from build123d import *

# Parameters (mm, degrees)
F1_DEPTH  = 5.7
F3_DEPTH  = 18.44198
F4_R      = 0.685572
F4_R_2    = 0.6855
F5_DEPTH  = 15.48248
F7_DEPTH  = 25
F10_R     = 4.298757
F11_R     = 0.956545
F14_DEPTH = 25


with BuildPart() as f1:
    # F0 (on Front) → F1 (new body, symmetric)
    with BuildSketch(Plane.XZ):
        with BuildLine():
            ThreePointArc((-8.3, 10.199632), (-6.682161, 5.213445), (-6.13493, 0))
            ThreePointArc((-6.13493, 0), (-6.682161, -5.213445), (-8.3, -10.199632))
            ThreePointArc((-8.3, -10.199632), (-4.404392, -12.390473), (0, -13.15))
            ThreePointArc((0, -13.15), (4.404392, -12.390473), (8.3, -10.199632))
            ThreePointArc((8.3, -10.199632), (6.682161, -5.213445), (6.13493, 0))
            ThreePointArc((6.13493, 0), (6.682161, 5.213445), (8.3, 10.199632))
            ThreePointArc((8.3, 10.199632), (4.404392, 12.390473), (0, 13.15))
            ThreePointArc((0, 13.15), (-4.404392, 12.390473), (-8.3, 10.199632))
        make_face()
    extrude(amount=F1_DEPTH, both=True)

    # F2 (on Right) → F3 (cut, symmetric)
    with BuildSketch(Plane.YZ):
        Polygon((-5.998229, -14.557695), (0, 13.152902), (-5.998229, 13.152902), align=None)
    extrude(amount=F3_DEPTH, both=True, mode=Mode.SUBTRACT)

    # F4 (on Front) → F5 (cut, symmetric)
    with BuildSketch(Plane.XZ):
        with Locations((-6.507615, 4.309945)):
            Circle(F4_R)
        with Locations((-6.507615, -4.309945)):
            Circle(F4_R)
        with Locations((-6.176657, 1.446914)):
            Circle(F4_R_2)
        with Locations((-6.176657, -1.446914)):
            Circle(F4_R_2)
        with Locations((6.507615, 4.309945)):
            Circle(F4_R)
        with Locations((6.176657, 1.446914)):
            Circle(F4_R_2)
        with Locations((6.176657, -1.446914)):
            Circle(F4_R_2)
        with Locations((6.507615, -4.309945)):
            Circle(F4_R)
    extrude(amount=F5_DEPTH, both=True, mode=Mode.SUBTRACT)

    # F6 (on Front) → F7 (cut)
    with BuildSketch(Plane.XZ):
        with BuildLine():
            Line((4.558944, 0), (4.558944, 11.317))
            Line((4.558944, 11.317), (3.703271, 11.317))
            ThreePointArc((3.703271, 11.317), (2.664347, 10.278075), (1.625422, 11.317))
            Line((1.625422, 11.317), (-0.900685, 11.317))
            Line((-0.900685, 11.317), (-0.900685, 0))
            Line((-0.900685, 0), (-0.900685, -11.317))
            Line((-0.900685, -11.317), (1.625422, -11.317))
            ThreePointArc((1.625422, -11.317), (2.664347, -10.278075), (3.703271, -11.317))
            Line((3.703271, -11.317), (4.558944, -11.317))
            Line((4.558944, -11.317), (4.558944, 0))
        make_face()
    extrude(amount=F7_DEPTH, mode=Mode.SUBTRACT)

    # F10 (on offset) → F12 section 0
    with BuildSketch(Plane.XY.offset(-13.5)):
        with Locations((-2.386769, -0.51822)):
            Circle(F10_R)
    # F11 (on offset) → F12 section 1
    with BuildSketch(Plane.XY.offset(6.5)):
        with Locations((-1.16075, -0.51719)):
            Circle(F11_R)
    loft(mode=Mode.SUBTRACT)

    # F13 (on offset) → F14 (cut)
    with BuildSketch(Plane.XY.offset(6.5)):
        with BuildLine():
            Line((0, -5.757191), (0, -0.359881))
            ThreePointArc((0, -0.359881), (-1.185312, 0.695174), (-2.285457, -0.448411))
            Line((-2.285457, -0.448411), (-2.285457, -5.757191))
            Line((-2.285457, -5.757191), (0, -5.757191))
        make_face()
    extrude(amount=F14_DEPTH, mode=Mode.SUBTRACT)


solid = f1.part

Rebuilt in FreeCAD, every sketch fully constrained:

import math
import FreeCAD as App
import Part
import Sketcher
from FreeCAD import Vector
Q = App.Units.Quantity


def add_polygon(sketch, points):
    """Adds a closed chain of lines whose ends are joined by coincident constraints."""
    first, n = sketch.GeometryCount, len(points)
    for a, b in zip(points, points[1:] + points[:1]):
        sketch.addGeometry(Part.LineSegment(App.Vector(*a, 0), App.Vector(*b, 0)), False)
    for i in range(n):
        sketch.addConstraint(Sketcher.Constraint("Coincident", first + i, 2, first + (i + 1) % n, 1))

doc = App.newDocument("Part")
body = doc.addObject("PartDesign::Body", "Body")

# Sketch on XZ plane
sketch1 = doc.addObject("Sketcher::SketchObject", "Sketch")
body.addObject(sketch1)
sketch1.AttachmentSupport = (doc.XZ_Plane, [""])
sketch1.MapMode = "FlatFace"
sketch1.addGeometry([
    Part.ArcOfCircle(Part.Circle(Vector(-31, 0, 0), Vector(0, 0, 1), 25), math.radians(0), math.radians(24)),  # 0
    Part.ArcOfCircle(Part.Circle(Vector(-31, 0, 0), Vector(0, 0, 1), 25), math.radians(-24), math.radians(0)),  # 1
    Part.ArcOfCircle(Part.Circle(Vector(0, 0, 0), Vector(0, 0, 1), 13), math.radians(-129), math.radians(-90)),  # 2
    Part.ArcOfCircle(Part.Circle(Vector(0, 0, 0), Vector(0, 0, 1), 13), math.radians(-90), math.radians(-51)),  # 3
    Part.ArcOfCircle(Part.Circle(Vector(31, 0, 0), Vector(0, 0, 1), 25), math.radians(180), math.radians(204)),  # 4
    Part.ArcOfCircle(Part.Circle(Vector(31, 0, 0), Vector(0, 0, 1), 25), math.radians(156), math.radians(180)),  # 5
    Part.ArcOfCircle(Part.Circle(Vector(0, 0, 0), Vector(0, 0, 1), 13), math.radians(51), math.radians(90)),  # 6
    Part.ArcOfCircle(Part.Circle(Vector(0, 0, 0), Vector(0, 0, 1), 13), math.radians(90), math.radians(129)),  # 7
], False)
sketch1.addConstraint([
    Sketcher.Constraint("Tangent", 0, 1, 1, 2),
    Sketcher.Constraint("Coincident", 1, 1, 2, 1),
    Sketcher.Constraint("Tangent", 2, 2, 3, 1),
    Sketcher.Constraint("Coincident", 3, 2, 4, 2),
    Sketcher.Constraint("Tangent", 4, 1, 5, 2),
    Sketcher.Constraint("Coincident", 5, 1, 6, 1),
    Sketcher.Constraint("Tangent", 6, 2, 7, 1),
    Sketcher.Constraint("Coincident", 7, 2, 0, 2),
    Sketcher.Constraint("Coincident", 2, 3, -1, 1),
    Sketcher.Constraint("Coincident", 6, 3, -1, 1),
    Sketcher.Constraint("Equal", 0, 1),
    Sketcher.Constraint("Equal", 2, 3),
    Sketcher.Constraint("Equal", 1, 4),
    Sketcher.Constraint("Equal", 4, 5),
    Sketcher.Constraint("Equal", 3, 6),
    Sketcher.Constraint("Equal", 6, 7),
    Sketcher.Constraint("Symmetric", 0, 3, 4, 3, -1, 1),
    Sketcher.Constraint("PointOnObject", 0, 3, -1),
    Sketcher.Constraint("PointOnObject", 0, 1, -1),
    Sketcher.Constraint("PointOnObject", 2, 2, -2),
    Sketcher.Constraint("PointOnObject", 4, 1, -1),
    Sketcher.Constraint("PointOnObject", 6, 2, -2),
    Sketcher.Constraint("DistanceX", 1, 1, -1, 1, Q("8.3 mm")),
    Sketcher.Constraint("DistanceY", 2, 2, -1, 1, Q("13.15 mm")),
    Sketcher.Constraint("Radius", 0, Q("25.107733 mm")),
])
pad1 = doc.addObject("PartDesign::Pad", "Pad")
body.addObject(pad1)
pad1.Profile = sketch1
pad1.Length = 11.4
pad1.Midplane = True

# Sketch on YZ plane
sketch2 = doc.addObject("Sketcher::SketchObject", "Sketch001")
body.addObject(sketch2)
sketch2.AttachmentSupport = (doc.YZ_Plane, [""])
sketch2.MapMode = "FlatFace"
add_polygon(sketch2, [(-6, -15), (0, 13), (-6, 13)])  # lines 0-2
sketch2.addConstraint([
    Sketcher.Constraint("Horizontal", 1),
    Sketcher.Constraint("Vertical", 2),
    Sketcher.Constraint("PointOnObject", 0, 2, -2),
    Sketcher.Constraint("DistanceX", 1, 2, 1, 1, Q("5.998229 mm")),
    Sketcher.Constraint("DistanceY", -1, 1, 0, 2, Q("13.152902 mm")),
    Sketcher.Constraint("DistanceY", 2, 2, 2, 1, Q("27.710597 mm")),
])
pocket1 = doc.addObject("PartDesign::Pocket", "Pocket")
body.addObject(pocket1)
pocket1.Profile = sketch2
pocket1.Length = 36.88396
pocket1.Midplane = True

# Sketch on XZ plane
sketch3 = doc.addObject("Sketcher::SketchObject", "Sketch002")
body.addObject(sketch3)
sketch3.AttachmentSupport = (doc.XZ_Plane, [""])
sketch3.MapMode = "FlatFace"
sketch3.addGeometry([
    Part.Circle(Vector(-6.5, 4.3, 0), Vector(0, 0, 1), 0.7),  # 0
    Part.Circle(Vector(-6.5, -4.3, 0), Vector(0, 0, 1), 0.7),  # 1
    Part.Circle(Vector(-6.2, 1.4, 0), Vector(0, 0, 1), 0.7),  # 2
    Part.Circle(Vector(-6.2, -1.4, 0), Vector(0, 0, 1), 0.7),  # 3
    Part.Circle(Vector(6.5, 4.3, 0), Vector(0, 0, 1), 0.7),  # 4
    Part.Circle(Vector(6.2, 1.4, 0), Vector(0, 0, 1), 0.7),  # 5
    Part.Circle(Vector(6.2, -1.4, 0), Vector(0, 0, 1), 0.7),  # 6
    Part.Circle(Vector(6.5, -4.3, 0), Vector(0, 0, 1), 0.7),  # 7
], False)
sketch3.addConstraint([
    Sketcher.Constraint("Equal", 0, 1),
    Sketcher.Constraint("Equal", 2, 3),
    Sketcher.Constraint("Equal", 1, 4),
    Sketcher.Constraint("Equal", 3, 5),
    Sketcher.Constraint("Equal", 5, 6),
    Sketcher.Constraint("Equal", 4, 7),
    Sketcher.Constraint("Symmetric", 1, 3, 4, 3, -1, 1),
    Sketcher.Constraint("Symmetric", 3, 3, 5, 3, -1, 1),
    Sketcher.Constraint("Symmetric", 2, 3, 6, 3, -1, 1),
    Sketcher.Constraint("Symmetric", 0, 3, 7, 3, -1, 1),
    Sketcher.Constraint("Symmetric", 0, 3, 4, 3, -2),
    Sketcher.Constraint("Symmetric", 2, 3, 5, 3, -2),
    Sketcher.Constraint("Diameter", 2, Q("1.371 mm")),
    Sketcher.Constraint("Diameter", 0, Q("1.371144 mm")),
    Sketcher.Constraint("DistanceY", 1, 3, 0, 3, Q("8.61989 mm")),
    Sketcher.Constraint("DistanceX", 0, 3, 2, 3, Q("0.330958 mm")),
    Sketcher.Constraint("DistanceY", 2, 3, 0, 3, Q("2.863031 mm")),
    Sketcher.Constraint("DistanceX", 0, 3, 4, 3, Q("13.01523 mm")),
])
pocket2 = doc.addObject("PartDesign::Pocket", "Pocket001")
body.addObject(pocket2)
pocket2.Profile = sketch3
pocket2.Length = 30.96496
pocket2.Midplane = True

# Sketch on XZ plane
sketch4 = doc.addObject("Sketcher::SketchObject", "Sketch003")
body.addObject(sketch4)
sketch4.AttachmentSupport = (doc.XZ_Plane, [""])
sketch4.MapMode = "FlatFace"
sketch4.addGeometry([
    Part.LineSegment(Vector(4.6, 11.3, 0), Vector(3.7, 11.3, 0)),  # 0
    Part.ArcOfCircle(Part.Circle(Vector(2.7, 11.3, 0), Vector(0, 0, 1), 1), math.radians(180), math.radians(360)),  # 1
    Part.LineSegment(Vector(1.6, 11.3, 0), Vector(-0.9, 11.3, 0)),  # 2
    Part.LineSegment(Vector(-0.9, 11.3, 0), Vector(-0.9, -11.3, 0)),  # 3
    Part.LineSegment(Vector(-0.9, -11.3, 0), Vector(1.6, -11.3, 0)),  # 4
    Part.ArcOfCircle(Part.Circle(Vector(2.7, -11.3, 0), Vector(0, 0, 1), 1), math.radians(0), math.radians(180)),  # 5
    Part.LineSegment(Vector(3.7, -11.3, 0), Vector(4.6, -11.3, 0)),  # 6
    Part.LineSegment(Vector(4.6, -11.3, 0), Vector(4.6, 11.3, 0)),  # 7
], False)
sketch4.addConstraint([
    Sketcher.Constraint("Coincident", 0, 2, 1, 2),
    Sketcher.Constraint("Coincident", 1, 1, 2, 1),
    Sketcher.Constraint("Coincident", 2, 2, 3, 1),
    Sketcher.Constraint("Coincident", 3, 2, 4, 1),
    Sketcher.Constraint("Coincident", 4, 2, 5, 2),
    Sketcher.Constraint("Coincident", 5, 1, 6, 1),
    Sketcher.Constraint("Coincident", 6, 2, 7, 1),
    Sketcher.Constraint("Coincident", 7, 2, 0, 1),
    Sketcher.Constraint("Horizontal", 0),
    Sketcher.Constraint("Horizontal", 2),
    Sketcher.Constraint("Vertical", 3),
    Sketcher.Constraint("Horizontal", 4),
    Sketcher.Constraint("Horizontal", 6),
    Sketcher.Constraint("Vertical", 7),
    Sketcher.Constraint("Equal", 1, 5),
    Sketcher.Constraint("Symmetric", 1, 3, 5, 3, -1),
    Sketcher.Constraint("Horizontal", 1, 3, 0, 2),
    Sketcher.Constraint("Horizontal", 0, 2, 1, 1),
    Sketcher.Constraint("Horizontal", 5, 3, 3, 2),
    Sketcher.Constraint("Horizontal", 4, 2, 5, 1),
    Sketcher.Constraint("DistanceY", 3, 2, 3, 1, Q("22.634 mm")),
    Sketcher.Constraint("Radius", 1, Q("1.038925 mm")),
    Sketcher.Constraint("DistanceX", 0, 2, 0, 1, Q("0.855673 mm")),
    Sketcher.Constraint("DistanceX", 2, 2, 2, 1, Q("2.526107 mm")),
    Sketcher.Constraint("DistanceX", -1, 1, 0, 2, Q("3.703271 mm")),
])
pocket3 = doc.addObject("PartDesign::Pocket", "Pocket002")
body.addObject(pocket3)
pocket3.Profile = sketch4
pocket3.Length = 25
pocket3.Reversed = True

# Sketch on XY plane
sketch5 = doc.addObject("Sketcher::SketchObject", "Sketch004")
body.addObject(sketch5)
sketch5.AttachmentSupport = (doc.XY_Plane, [""])
sketch5.MapMode = "FlatFace"
sketch5.AttachmentOffset = App.Placement(Vector(0, 0, -13.5), App.Rotation())
sketch5.addGeometry(Part.Circle(Vector(-2.4, -0.5, 0), Vector(0, 0, 1), 4.3), False)
sketch5.addConstraint([
    Sketcher.Constraint("Diameter", 0, Q("8.597514 mm")),
    Sketcher.Constraint("DistanceX", 0, 3, -1, 1, Q("2.386769 mm")),
    Sketcher.Constraint("DistanceY", 0, 3, -1, 1, Q("0.51822 mm")),
])

# Sketch on XY plane
sketch6 = doc.addObject("Sketcher::SketchObject", "Sketch005")
body.addObject(sketch6)
sketch6.AttachmentSupport = (doc.XY_Plane, [""])
sketch6.MapMode = "FlatFace"
sketch6.AttachmentOffset = App.Placement(Vector(0, 0, 6.5), App.Rotation())
sketch6.addGeometry(Part.Circle(Vector(-1.2, -0.5, 0), Vector(0, 0, 1), 1), False)
sketch6.addConstraint([
    Sketcher.Constraint("Diameter", 0, Q("1.91309 mm")),
    Sketcher.Constraint("DistanceX", 0, 3, -1, 1, Q("1.16075 mm")),
    Sketcher.Constraint("DistanceY", 0, 3, -1, 1, Q("0.51719 mm")),
])

subtractiveloft = doc.addObject("PartDesign::SubtractiveLoft", "SubtractiveLoft")
body.addObject(subtractiveloft)
subtractiveloft.Profile = sketch5
subtractiveloft.Sections = [sketch6]

# Sketch on XY plane
sketch7 = doc.addObject("Sketcher::SketchObject", "Sketch006")
body.addObject(sketch7)
sketch7.AttachmentSupport = (doc.XY_Plane, [""])
sketch7.MapMode = "FlatFace"
sketch7.AttachmentOffset = App.Placement(Vector(0, 0, 6.5), App.Rotation())
sketch7.addGeometry([
    Part.LineSegment(Vector(0, -5.8, 0), Vector(0, -0.4, 0)),
    Part.ArcOfCircle(Part.Circle(Vector(-1.1, -0.4, 0), Vector(0, 0, 1), 1.1), math.radians(4), math.radians(180)),
    Part.LineSegment(Vector(-2.3, -0.4, 0), Vector(-2.3, -5.8, 0)),
    Part.LineSegment(Vector(-2.3, -5.8, 0), Vector(0, -5.8, 0)),
], False)
sketch7.addConstraint([
    Sketcher.Constraint("Coincident", 0, 2, 1, 1),
    Sketcher.Constraint("Tangent", 1, 2, 2, 1),
    Sketcher.Constraint("Coincident", 2, 2, 3, 1),
    Sketcher.Constraint("Coincident", 3, 2, 0, 1),
    Sketcher.Constraint("Vertical", 0),
    Sketcher.Constraint("Vertical", 2),
    Sketcher.Constraint("Horizontal", 3),
    Sketcher.Constraint("PointOnObject", 0, 2, -2),
    Sketcher.Constraint("Radius", 1, Q("1.144443 mm")),
    Sketcher.Constraint("DistanceY", 0, 1, 0, 2, Q("5.39731 mm")),
    Sketcher.Constraint("DistanceY", 2, 2, 2, 1, Q("5.30878 mm")),
    Sketcher.Constraint("DistanceY", 1, 3, -1, 1, Q("0.448412 mm")),
])
pocket4 = doc.addObject("PartDesign::Pocket", "Pocket003")
body.addObject(pocket4)
pocket4.Profile = sketch7
pocket4.Length = 25
pocket4.Reversed = True

doc.recompute()
